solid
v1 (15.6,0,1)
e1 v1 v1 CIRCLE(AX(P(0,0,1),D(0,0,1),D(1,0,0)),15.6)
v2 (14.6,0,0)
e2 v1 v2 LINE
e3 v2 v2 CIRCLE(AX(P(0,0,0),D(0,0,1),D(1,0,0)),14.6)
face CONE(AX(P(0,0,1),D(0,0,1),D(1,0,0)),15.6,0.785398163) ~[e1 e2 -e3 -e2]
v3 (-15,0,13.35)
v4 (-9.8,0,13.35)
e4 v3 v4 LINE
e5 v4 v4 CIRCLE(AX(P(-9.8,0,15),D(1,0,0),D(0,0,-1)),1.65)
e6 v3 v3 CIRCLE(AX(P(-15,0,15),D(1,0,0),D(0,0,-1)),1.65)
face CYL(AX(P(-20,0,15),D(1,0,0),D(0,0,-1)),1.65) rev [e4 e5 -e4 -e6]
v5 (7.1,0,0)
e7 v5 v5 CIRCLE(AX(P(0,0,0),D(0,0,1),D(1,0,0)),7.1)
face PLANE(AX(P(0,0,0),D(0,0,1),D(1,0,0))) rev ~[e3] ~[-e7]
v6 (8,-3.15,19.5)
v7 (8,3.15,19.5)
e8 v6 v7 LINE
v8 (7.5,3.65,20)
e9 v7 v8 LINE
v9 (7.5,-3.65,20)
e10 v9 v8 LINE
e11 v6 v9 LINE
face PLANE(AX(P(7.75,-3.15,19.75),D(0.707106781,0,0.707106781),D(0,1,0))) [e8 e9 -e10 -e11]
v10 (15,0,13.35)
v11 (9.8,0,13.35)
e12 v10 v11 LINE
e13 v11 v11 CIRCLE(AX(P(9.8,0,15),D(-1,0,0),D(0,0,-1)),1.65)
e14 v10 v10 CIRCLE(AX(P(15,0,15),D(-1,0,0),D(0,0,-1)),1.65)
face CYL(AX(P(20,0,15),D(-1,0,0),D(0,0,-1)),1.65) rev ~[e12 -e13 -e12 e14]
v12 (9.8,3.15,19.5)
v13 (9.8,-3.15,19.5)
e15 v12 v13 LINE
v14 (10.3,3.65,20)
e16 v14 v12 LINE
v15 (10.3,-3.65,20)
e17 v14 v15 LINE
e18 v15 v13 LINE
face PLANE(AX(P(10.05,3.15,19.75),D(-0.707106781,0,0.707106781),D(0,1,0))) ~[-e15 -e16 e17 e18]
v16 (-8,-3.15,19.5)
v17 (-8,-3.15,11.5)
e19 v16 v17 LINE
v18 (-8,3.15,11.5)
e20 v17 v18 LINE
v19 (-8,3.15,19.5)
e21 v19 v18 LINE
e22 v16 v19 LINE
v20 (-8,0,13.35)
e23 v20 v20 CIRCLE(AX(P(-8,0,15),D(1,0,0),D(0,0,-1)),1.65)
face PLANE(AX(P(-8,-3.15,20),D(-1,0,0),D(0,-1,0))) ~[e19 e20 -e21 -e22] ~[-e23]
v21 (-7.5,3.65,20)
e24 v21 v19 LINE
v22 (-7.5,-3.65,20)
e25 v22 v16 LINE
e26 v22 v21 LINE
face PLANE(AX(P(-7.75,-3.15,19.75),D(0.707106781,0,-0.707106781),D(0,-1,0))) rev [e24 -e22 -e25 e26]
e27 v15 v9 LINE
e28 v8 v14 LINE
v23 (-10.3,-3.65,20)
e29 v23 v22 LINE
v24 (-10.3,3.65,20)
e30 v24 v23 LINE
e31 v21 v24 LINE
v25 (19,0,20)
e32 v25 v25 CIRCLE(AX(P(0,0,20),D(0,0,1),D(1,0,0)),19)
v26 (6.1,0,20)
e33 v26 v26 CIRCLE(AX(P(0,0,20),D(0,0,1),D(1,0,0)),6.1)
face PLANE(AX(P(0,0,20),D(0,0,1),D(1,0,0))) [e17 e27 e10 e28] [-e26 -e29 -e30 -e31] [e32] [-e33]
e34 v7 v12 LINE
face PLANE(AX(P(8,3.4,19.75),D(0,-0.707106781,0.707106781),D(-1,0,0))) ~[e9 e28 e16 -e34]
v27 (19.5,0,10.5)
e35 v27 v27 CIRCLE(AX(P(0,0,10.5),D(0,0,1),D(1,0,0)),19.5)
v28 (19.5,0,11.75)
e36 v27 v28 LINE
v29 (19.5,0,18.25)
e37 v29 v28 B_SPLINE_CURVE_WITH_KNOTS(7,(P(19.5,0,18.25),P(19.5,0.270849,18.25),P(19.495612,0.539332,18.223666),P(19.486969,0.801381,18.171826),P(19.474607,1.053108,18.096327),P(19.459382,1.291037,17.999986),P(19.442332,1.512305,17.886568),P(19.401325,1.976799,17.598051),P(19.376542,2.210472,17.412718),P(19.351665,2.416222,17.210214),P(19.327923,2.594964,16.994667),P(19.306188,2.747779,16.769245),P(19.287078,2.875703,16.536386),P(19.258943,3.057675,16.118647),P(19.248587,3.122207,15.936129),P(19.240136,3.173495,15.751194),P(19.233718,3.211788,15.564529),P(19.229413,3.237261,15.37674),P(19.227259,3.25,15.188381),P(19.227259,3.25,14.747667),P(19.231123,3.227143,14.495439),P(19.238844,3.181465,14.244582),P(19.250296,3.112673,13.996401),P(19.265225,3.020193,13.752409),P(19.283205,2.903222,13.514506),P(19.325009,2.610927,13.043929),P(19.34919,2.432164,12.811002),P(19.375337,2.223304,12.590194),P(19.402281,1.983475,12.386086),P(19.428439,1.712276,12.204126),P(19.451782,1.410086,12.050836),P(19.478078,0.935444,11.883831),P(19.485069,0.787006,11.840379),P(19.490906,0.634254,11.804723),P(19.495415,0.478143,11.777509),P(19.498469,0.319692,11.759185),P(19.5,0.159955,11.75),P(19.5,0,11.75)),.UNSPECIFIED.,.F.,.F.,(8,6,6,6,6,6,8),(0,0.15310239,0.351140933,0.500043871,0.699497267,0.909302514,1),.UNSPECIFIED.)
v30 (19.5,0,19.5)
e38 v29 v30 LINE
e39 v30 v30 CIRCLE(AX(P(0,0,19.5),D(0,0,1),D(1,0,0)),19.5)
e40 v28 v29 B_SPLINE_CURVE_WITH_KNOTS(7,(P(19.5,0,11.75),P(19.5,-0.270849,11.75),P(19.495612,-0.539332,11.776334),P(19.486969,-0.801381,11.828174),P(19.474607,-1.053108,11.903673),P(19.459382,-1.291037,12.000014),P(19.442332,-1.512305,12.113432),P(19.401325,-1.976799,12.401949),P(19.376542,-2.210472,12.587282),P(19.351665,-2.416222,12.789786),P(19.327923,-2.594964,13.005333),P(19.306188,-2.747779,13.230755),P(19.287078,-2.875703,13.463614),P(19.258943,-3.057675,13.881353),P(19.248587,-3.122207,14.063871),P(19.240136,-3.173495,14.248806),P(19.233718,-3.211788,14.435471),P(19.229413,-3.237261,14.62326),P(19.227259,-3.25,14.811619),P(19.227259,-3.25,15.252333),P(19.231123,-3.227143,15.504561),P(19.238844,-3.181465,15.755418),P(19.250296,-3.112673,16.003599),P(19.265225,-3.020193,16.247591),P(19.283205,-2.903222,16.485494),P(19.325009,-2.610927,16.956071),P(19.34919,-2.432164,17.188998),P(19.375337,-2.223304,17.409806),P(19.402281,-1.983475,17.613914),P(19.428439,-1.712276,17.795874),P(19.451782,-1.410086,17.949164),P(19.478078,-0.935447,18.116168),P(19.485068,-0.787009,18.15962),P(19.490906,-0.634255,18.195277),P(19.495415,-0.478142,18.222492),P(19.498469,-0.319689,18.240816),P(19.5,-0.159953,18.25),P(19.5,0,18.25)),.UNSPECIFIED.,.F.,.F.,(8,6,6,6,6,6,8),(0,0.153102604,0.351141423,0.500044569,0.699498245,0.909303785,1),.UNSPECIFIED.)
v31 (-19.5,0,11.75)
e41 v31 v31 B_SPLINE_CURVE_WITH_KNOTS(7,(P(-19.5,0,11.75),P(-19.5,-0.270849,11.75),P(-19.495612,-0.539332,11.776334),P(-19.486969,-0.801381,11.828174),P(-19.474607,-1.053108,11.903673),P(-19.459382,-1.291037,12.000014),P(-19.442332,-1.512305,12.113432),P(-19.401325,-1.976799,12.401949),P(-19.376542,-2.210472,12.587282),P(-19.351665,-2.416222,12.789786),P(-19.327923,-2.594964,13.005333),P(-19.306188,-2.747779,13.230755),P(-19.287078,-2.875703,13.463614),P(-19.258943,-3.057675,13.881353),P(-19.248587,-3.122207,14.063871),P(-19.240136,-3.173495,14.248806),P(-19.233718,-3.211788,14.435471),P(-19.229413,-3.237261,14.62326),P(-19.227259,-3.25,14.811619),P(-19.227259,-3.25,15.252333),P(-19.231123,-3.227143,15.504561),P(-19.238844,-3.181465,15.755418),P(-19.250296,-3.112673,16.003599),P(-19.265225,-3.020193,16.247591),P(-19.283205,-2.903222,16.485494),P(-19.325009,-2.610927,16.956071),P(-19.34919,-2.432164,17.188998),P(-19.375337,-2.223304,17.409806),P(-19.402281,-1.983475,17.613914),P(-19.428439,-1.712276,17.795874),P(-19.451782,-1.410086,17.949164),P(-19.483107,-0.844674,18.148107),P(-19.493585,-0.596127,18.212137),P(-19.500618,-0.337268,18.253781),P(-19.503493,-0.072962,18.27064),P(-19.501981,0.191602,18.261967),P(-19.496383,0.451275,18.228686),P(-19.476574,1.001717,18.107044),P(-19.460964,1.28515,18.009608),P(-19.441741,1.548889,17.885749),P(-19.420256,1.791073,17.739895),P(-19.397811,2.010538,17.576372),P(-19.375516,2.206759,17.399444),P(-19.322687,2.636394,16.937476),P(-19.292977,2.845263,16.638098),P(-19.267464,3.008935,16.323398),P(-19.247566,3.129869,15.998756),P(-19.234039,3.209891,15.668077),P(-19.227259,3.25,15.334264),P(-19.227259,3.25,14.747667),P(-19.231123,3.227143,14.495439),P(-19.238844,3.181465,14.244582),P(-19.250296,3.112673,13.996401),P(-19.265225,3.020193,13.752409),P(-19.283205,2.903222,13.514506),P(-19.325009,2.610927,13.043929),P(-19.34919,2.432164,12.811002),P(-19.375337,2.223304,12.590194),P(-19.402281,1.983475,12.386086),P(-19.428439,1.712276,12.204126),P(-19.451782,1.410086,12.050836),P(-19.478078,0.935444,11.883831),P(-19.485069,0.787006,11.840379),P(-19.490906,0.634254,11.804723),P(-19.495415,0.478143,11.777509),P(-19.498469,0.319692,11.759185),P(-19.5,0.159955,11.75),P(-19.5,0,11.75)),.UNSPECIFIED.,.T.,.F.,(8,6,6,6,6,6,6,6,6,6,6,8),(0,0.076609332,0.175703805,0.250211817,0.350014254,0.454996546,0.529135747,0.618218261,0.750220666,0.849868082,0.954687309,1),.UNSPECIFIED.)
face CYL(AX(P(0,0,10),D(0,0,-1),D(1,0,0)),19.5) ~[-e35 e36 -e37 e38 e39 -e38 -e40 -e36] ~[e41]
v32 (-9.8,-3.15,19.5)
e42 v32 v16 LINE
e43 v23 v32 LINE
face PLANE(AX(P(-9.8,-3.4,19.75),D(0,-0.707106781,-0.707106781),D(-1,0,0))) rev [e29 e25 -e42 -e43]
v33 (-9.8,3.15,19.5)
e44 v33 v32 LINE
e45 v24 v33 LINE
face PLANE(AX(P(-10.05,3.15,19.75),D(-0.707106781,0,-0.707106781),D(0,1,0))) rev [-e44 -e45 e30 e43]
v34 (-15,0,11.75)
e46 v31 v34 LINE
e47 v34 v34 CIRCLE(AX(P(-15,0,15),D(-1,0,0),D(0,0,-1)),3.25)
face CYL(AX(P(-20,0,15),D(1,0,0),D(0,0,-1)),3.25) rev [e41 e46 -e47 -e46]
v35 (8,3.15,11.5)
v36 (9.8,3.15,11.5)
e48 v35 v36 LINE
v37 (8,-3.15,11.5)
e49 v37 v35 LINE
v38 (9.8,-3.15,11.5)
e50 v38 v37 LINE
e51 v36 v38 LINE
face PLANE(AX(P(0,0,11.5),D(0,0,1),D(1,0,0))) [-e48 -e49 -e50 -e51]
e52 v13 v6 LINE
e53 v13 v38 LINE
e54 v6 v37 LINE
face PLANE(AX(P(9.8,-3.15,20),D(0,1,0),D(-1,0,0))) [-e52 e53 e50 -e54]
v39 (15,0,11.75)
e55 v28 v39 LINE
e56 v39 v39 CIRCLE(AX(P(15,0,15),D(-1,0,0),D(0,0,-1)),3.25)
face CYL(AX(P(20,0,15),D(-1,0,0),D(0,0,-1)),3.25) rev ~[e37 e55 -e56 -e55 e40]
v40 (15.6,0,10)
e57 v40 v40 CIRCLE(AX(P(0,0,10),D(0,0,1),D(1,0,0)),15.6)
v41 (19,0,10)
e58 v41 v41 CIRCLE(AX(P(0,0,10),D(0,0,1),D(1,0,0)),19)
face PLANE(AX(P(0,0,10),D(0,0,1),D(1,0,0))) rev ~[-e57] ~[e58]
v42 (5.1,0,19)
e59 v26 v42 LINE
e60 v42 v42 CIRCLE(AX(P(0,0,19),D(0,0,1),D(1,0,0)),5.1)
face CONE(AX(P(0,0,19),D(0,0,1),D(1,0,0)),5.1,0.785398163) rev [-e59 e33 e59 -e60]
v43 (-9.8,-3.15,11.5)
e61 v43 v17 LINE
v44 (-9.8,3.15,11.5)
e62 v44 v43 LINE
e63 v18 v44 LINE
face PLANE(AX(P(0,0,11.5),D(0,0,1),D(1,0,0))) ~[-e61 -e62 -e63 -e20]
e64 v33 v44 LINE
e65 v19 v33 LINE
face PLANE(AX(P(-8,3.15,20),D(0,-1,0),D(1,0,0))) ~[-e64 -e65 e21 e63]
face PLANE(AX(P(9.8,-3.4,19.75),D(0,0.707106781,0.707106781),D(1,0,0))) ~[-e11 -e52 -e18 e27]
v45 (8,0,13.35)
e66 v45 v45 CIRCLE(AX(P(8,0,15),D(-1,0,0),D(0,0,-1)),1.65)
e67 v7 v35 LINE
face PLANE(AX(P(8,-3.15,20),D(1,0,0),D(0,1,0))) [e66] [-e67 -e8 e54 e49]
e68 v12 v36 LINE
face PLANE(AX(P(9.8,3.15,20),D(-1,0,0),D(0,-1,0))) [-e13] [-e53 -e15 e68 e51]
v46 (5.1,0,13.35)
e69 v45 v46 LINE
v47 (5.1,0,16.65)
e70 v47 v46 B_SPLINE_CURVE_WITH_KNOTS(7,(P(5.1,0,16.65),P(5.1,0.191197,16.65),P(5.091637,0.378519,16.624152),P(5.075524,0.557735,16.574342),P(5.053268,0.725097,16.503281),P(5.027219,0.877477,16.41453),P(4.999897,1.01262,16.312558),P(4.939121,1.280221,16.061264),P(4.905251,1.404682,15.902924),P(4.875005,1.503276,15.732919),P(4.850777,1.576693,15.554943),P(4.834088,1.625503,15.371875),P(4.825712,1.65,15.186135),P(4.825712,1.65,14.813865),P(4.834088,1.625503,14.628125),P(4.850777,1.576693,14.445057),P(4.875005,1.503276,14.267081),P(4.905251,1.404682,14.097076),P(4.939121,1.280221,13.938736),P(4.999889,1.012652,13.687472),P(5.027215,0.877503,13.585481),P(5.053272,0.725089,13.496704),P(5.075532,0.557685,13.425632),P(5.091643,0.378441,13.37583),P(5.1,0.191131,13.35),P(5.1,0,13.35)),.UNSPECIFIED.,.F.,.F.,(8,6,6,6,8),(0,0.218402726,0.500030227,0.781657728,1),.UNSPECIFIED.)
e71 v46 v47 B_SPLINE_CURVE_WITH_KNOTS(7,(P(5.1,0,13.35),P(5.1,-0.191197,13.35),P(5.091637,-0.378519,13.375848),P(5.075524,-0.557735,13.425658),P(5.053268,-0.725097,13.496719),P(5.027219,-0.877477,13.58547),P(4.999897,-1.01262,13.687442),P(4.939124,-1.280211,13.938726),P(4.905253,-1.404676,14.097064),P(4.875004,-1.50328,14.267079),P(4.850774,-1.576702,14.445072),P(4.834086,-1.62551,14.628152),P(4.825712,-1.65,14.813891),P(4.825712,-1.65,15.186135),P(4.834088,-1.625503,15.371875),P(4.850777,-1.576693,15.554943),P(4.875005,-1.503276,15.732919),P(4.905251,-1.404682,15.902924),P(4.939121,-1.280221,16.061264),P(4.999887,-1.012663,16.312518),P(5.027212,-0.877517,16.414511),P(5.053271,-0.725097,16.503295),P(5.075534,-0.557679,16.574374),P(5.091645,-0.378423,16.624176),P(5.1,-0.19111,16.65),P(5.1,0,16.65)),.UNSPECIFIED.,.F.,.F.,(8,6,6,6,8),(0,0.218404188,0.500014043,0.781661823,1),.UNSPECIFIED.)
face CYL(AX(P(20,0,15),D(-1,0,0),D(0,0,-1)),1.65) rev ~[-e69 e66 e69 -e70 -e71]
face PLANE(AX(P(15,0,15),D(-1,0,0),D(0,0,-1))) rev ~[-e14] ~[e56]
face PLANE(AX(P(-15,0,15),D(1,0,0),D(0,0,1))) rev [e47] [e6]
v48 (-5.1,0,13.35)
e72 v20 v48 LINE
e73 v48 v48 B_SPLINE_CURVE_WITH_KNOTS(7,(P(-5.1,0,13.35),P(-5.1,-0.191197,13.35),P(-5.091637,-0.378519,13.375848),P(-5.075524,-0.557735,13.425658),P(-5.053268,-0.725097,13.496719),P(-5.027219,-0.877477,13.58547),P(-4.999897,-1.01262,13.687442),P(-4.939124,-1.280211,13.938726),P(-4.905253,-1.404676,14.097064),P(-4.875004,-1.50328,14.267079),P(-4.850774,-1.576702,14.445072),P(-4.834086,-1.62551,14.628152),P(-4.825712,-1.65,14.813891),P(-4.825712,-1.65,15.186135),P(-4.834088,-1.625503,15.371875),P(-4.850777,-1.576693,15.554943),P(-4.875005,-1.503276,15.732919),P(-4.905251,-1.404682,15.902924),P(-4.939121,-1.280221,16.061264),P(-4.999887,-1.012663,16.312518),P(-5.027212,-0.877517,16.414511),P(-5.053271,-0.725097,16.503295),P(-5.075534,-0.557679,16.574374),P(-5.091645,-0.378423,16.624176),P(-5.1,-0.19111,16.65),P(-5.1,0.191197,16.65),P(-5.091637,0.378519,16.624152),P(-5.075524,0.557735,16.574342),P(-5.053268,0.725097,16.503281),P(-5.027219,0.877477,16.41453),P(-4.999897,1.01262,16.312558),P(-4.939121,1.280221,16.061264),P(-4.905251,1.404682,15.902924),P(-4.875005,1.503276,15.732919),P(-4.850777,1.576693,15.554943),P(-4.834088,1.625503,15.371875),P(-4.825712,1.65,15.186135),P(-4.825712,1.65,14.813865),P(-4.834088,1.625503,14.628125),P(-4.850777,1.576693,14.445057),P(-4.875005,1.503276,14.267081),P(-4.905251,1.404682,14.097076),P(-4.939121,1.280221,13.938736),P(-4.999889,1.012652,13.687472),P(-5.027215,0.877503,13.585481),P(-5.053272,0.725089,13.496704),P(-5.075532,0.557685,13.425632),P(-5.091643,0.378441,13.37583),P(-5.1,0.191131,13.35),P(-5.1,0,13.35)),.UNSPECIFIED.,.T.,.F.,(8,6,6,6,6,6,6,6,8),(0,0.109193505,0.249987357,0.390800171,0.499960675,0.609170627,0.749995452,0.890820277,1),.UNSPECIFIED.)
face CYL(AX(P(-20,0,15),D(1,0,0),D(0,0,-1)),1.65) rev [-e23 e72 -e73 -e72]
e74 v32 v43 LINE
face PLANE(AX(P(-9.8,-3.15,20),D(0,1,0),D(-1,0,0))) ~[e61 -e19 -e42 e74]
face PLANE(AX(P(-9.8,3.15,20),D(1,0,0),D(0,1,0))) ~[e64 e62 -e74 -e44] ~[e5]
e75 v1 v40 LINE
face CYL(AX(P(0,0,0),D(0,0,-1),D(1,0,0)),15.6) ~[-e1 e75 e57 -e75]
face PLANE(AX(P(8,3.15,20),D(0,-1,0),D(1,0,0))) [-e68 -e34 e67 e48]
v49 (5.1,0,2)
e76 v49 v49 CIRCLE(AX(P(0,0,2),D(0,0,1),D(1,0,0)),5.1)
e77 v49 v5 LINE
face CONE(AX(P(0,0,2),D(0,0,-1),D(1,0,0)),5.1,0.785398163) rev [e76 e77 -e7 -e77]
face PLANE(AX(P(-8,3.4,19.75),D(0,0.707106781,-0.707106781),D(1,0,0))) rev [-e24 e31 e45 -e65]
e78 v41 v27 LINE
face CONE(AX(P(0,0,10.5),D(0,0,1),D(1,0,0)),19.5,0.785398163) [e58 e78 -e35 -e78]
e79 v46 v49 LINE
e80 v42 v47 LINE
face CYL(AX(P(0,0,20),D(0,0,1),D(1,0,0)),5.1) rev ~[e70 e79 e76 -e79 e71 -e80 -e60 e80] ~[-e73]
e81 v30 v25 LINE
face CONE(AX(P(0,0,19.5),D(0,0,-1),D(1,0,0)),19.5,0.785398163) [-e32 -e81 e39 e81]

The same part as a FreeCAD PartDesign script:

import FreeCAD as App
import Part
import Sketcher

V = App.Vector


def edges_at(feature, points):
    """Names of the edges that pass closest to the given points."""
    edges = feature.Shape.Edges
    near = lambda p: min(range(len(edges)), key=lambda i: edges[i].distToShape(Part.Vertex(*p))[0])
    return sorted({f"Edge{near(p) + 1}" for p in points})

doc = App.newDocument("Part")
params = doc.addObject("Spreadsheet::Sheet", "Params")
for row, (alias, value) in enumerate([
    ("sketch1_diameter", "31.2 mm"),
    ("pad1_length", "10 mm"),
    ("sketch2_diameter", "39 mm"),
    ("pad2_length", "10 mm"),
    ("chamfer_size", "1 mm"),
    ("chamfer2_size", "0.5 mm"),
    ("sketch3_diameter", "10.2 mm"),
    ("chamfer3_size", "1 mm"),
    ("sketch4_diameter", "3.3 mm"),
    ("hole_diameter", "3.3 mm"),
    ("hole_depth", "17.75 mm"),
    ("sketch5_diameter", "6.5 mm"),
    ("hole2_diameter", "6.5 mm"),
    ("hole2_depth", "5 mm"),
    ("sketch6_width", "1.8 mm"),
    ("sketch6_height", "6.3 mm"),
    ("pocket2_length", "8.5 mm"),
    ("chamfer4_size", "2 mm"),
    ("chamfer5_size", "0.5 mm"),
], start=1):
    params.set(f"A{row}", alias)
    params.set(f"B{row}", "=" + value)
    params.setAlias(f"B{row}", alias)

body = doc.addObject("PartDesign::Body", "Body")

sketch1 = body.newObject("Sketcher::SketchObject", "Sketch")
sketch1.AttachmentSupport = (doc.getObject("XY_Plane"), [""])
sketch1.MapMode = "FlatFace"
sketch1.addGeometry(Part.Circle(V(0, 0, 0), V(0, 0, 1), 15.6), False)
sketch1.addConstraint([
    Sketcher.Constraint("Coincident", 0, 3, -1, 1),
    Sketcher.Constraint("Diameter", 0, 31.2),
])
sketch1.setExpression("Constraints[1]", "Params.sketch1_diameter")
pad1 = body.newObject("PartDesign::Pad", "Pad")
pad1.Profile = sketch1
pad1.setExpression("Length", "Params.pad1_length")

sketch2 = body.newObject("Sketcher::SketchObject", "Sketch001")
sketch2.AttachmentSupport = (doc.getObject("XY_Plane"), [""])
sketch2.MapMode = "FlatFace"
sketch2.AttachmentOffset = App.Placement(V(0, 0, 10), App.Rotation())
sketch2.addGeometry(Part.Circle(V(0, 0, 0), V(0, 0, 1), 19.5), False)
sketch2.addConstraint([
    Sketcher.Constraint("Coincident", 0, 3, -1, 1),
    Sketcher.Constraint("Diameter", 0, 39.0),
])
sketch2.setExpression("Constraints[1]", "Params.sketch2_diameter")
pad2 = body.newObject("PartDesign::Pad", "Pad001")
pad2.Profile = sketch2
pad2.setExpression("Length", "Params.pad2_length")
doc.recompute()

chamfer = body.newObject("PartDesign::Chamfer", "Chamfer")
chamfer.Base = (pad2, edges_at(pad2, [(-15.6, 0, 0)]))
chamfer.setExpression("Size", "Params.chamfer_size")
doc.recompute()

chamfer2 = body.newObject("PartDesign::Chamfer", "Chamfer001")
chamfer2.Base = (chamfer, edges_at(chamfer, [(-19.5, 0, 20), (-19.5, 0, 10)]))
chamfer2.setExpression("Size", "Params.chamfer2_size")

sketch3 = body.newObject("Sketcher::SketchObject", "Sketch002")
sketch3.AttachmentSupport = (doc.getObject("XY_Plane"), [""])
sketch3.MapMode = "FlatFace"
sketch3.AttachmentOffset = App.Placement(V(0, 0, 20), App.Rotation())
sketch3.addGeometry(Part.Circle(V(0, 0, 0), V(0, 0, 1), 5.1), False)
sketch3.addConstraint([
    Sketcher.Constraint("Coincident", 0, 3, -1, 1),
    Sketcher.Constraint("Diameter", 0, 10.2),
])
sketch3.setExpression("Constraints[1]", "Params.sketch3_diameter")
pocket1 = body.newObject("PartDesign::Pocket", "Pocket")
pocket1.Profile = sketch3
pocket1.Type = "ThroughAll"
doc.recompute()

chamfer3 = body.newObject("PartDesign::Chamfer", "Chamfer002")
chamfer3.Base = (pocket1, edges_at(pocket1, [(-5.1, 0, 20)]))
chamfer3.setExpression("Size", "Params.chamfer3_size")

sketch4 = body.newObject("Sketcher::SketchObject", "Sketch003")
sketch4.AttachmentSupport = (doc.getObject("YZ_Plane"), [""])
sketch4.MapMode = "FlatFace"
sketch4.AttachmentOffset = App.Placement(V(0, 0, 20), App.Rotation())
sketch4.addGeometry(Part.Circle(V(0, 15, 0), V(0, 0, 1), 1.65), False)
sketch4.addConstraint([
    Sketcher.Constraint("PointOnObject", 0, 3, -2),
    Sketcher.Constraint("Diameter", 0, 3.3),
    Sketcher.Constraint("DistanceY", -1, 1, 0, 3, 15.0),
])
sketch4.setExpression("Constraints[1]", "Params.sketch4_diameter")
doc.recompute()
hole = body.newObject("PartDesign::Hole", "Hole")
hole.Profile = sketch4
hole.ThreadType = "None"
hole.setExpression("Diameter", "Params.hole_diameter")
hole.DepthType = "Dimension"
hole.setExpression("Depth", "Params.hole_depth")
hole.DrillPoint = "Angled"
hole.DrillPointAngle = 118

sketch5 = body.newObject("Sketcher::SketchObject", "Sketch004")
sketch5.AttachmentSupport = (doc.getObject("YZ_Plane"), [""])
sketch5.MapMode = "FlatFace"
sketch5.AttachmentOffset = App.Placement(V(0, 0, 20), App.Rotation())
sketch5.addGeometry(Part.Circle(V(0, 15, 0), V(0, 0, 1), 3.25), False)
sketch5.addConstraint([
    Sketcher.Constraint("PointOnObject", 0, 3, -2),
    Sketcher.Constraint("Diameter", 0, 6.5),
    Sketcher.Constraint("DistanceY", -1, 1, 0, 3, 15.0),
])
sketch5.setExpression("Constraints[1]", "Params.sketch5_diameter")
doc.recompute()
hole2 = body.newObject("PartDesign::Hole", "Hole001")
hole2.Profile = sketch5
hole2.ThreadType = "None"
hole2.setExpression("Diameter", "Params.hole2_diameter")
hole2.DepthType = "Dimension"
hole2.setExpression("Depth", "Params.hole2_depth")
hole2.DrillPoint = "Flat"

sketch6 = body.newObject("Sketcher::SketchObject", "Sketch005")
sketch6.AttachmentSupport = (doc.getObject("XY_Plane"), [""])
sketch6.MapMode = "FlatFace"
sketch6.AttachmentOffset = App.Placement(V(0, 0, 20), App.Rotation())
sketch6.addGeometry([
    Part.LineSegment(V(9.8, 3.15, 0), V(8, 3.15, 0)),
    Part.LineSegment(V(8, 3.15, 0), V(8, -3.15, 0)),
    Part.LineSegment(V(8, -3.15, 0), V(9.8, -3.15, 0)),
    Part.LineSegment(V(9.8, -3.15, 0), V(9.8, 3.15, 0)),
], False)
sketch6.addConstraint([
    Sketcher.Constraint("Coincident", 0, 2, 1, 1),
    Sketcher.Constraint("Coincident", 1, 2, 2, 1),
    Sketcher.Constraint("Coincident", 2, 2, 3, 1),
    Sketcher.Constraint("Coincident", 3, 2, 0, 1),
    Sketcher.Constraint("Horizontal", 0),
    Sketcher.Constraint("Vertical", 1),
    Sketcher.Constraint("Horizontal", 2),
    Sketcher.Constraint("Vertical", 3),
    Sketcher.Constraint("DistanceX", 0, 2, 0, 1, 1.8),
    Sketcher.Constraint("DistanceY", 1, 2, 1, 1, 6.3),
    Sketcher.Constraint("DistanceX", -1, 1, 0, 2, 8.0),
    Sketcher.Constraint("DistanceY", -1, 1, 0, 2, 3.15),
])
sketch6.setExpression("Constraints[8]", "Params.sketch6_width")
sketch6.setExpression("Constraints[9]", "Params.sketch6_height")
pocket2 = body.newObject("PartDesign::Pocket", "Pocket001")
pocket2.Profile = sketch6
pocket2.setExpression("Length", "Params.pocket2_length")
doc.recompute()

mirrored = body.newObject("PartDesign::Mirrored", "Mirrored")
mirrored.Originals = [hole2, hole, pocket2]
mirrored.MirrorPlane = (doc.getObject("YZ_Plane"), [""])
body.Tip = mirrored
doc.recompute()

chamfer4 = body.newObject("PartDesign::Chamfer", "Chamfer003")
chamfer4.Base = (mirrored, edges_at(mirrored, [(-5.1, 0, 0)]))
chamfer4.setExpression("Size", "Params.chamfer4_size")
doc.recompute()

chamfer5 = body.newObject("PartDesign::Chamfer", "Chamfer004")
chamfer5.Base = (chamfer4, edges_at(chamfer4, [
    (9.8, 0, 20),
    (8, 0, 20),
    (8.9, -3.15, 20),
    (8.9, 3.15, 20),
    (-8.9, 3.15, 20),
    (-8.9, -3.15, 20),
    (-9.8, 0, 20),
    (-8, 0, 20),
]))
chamfer5.setExpression("Size", "Params.chamfer5_size")

doc.recompute()
